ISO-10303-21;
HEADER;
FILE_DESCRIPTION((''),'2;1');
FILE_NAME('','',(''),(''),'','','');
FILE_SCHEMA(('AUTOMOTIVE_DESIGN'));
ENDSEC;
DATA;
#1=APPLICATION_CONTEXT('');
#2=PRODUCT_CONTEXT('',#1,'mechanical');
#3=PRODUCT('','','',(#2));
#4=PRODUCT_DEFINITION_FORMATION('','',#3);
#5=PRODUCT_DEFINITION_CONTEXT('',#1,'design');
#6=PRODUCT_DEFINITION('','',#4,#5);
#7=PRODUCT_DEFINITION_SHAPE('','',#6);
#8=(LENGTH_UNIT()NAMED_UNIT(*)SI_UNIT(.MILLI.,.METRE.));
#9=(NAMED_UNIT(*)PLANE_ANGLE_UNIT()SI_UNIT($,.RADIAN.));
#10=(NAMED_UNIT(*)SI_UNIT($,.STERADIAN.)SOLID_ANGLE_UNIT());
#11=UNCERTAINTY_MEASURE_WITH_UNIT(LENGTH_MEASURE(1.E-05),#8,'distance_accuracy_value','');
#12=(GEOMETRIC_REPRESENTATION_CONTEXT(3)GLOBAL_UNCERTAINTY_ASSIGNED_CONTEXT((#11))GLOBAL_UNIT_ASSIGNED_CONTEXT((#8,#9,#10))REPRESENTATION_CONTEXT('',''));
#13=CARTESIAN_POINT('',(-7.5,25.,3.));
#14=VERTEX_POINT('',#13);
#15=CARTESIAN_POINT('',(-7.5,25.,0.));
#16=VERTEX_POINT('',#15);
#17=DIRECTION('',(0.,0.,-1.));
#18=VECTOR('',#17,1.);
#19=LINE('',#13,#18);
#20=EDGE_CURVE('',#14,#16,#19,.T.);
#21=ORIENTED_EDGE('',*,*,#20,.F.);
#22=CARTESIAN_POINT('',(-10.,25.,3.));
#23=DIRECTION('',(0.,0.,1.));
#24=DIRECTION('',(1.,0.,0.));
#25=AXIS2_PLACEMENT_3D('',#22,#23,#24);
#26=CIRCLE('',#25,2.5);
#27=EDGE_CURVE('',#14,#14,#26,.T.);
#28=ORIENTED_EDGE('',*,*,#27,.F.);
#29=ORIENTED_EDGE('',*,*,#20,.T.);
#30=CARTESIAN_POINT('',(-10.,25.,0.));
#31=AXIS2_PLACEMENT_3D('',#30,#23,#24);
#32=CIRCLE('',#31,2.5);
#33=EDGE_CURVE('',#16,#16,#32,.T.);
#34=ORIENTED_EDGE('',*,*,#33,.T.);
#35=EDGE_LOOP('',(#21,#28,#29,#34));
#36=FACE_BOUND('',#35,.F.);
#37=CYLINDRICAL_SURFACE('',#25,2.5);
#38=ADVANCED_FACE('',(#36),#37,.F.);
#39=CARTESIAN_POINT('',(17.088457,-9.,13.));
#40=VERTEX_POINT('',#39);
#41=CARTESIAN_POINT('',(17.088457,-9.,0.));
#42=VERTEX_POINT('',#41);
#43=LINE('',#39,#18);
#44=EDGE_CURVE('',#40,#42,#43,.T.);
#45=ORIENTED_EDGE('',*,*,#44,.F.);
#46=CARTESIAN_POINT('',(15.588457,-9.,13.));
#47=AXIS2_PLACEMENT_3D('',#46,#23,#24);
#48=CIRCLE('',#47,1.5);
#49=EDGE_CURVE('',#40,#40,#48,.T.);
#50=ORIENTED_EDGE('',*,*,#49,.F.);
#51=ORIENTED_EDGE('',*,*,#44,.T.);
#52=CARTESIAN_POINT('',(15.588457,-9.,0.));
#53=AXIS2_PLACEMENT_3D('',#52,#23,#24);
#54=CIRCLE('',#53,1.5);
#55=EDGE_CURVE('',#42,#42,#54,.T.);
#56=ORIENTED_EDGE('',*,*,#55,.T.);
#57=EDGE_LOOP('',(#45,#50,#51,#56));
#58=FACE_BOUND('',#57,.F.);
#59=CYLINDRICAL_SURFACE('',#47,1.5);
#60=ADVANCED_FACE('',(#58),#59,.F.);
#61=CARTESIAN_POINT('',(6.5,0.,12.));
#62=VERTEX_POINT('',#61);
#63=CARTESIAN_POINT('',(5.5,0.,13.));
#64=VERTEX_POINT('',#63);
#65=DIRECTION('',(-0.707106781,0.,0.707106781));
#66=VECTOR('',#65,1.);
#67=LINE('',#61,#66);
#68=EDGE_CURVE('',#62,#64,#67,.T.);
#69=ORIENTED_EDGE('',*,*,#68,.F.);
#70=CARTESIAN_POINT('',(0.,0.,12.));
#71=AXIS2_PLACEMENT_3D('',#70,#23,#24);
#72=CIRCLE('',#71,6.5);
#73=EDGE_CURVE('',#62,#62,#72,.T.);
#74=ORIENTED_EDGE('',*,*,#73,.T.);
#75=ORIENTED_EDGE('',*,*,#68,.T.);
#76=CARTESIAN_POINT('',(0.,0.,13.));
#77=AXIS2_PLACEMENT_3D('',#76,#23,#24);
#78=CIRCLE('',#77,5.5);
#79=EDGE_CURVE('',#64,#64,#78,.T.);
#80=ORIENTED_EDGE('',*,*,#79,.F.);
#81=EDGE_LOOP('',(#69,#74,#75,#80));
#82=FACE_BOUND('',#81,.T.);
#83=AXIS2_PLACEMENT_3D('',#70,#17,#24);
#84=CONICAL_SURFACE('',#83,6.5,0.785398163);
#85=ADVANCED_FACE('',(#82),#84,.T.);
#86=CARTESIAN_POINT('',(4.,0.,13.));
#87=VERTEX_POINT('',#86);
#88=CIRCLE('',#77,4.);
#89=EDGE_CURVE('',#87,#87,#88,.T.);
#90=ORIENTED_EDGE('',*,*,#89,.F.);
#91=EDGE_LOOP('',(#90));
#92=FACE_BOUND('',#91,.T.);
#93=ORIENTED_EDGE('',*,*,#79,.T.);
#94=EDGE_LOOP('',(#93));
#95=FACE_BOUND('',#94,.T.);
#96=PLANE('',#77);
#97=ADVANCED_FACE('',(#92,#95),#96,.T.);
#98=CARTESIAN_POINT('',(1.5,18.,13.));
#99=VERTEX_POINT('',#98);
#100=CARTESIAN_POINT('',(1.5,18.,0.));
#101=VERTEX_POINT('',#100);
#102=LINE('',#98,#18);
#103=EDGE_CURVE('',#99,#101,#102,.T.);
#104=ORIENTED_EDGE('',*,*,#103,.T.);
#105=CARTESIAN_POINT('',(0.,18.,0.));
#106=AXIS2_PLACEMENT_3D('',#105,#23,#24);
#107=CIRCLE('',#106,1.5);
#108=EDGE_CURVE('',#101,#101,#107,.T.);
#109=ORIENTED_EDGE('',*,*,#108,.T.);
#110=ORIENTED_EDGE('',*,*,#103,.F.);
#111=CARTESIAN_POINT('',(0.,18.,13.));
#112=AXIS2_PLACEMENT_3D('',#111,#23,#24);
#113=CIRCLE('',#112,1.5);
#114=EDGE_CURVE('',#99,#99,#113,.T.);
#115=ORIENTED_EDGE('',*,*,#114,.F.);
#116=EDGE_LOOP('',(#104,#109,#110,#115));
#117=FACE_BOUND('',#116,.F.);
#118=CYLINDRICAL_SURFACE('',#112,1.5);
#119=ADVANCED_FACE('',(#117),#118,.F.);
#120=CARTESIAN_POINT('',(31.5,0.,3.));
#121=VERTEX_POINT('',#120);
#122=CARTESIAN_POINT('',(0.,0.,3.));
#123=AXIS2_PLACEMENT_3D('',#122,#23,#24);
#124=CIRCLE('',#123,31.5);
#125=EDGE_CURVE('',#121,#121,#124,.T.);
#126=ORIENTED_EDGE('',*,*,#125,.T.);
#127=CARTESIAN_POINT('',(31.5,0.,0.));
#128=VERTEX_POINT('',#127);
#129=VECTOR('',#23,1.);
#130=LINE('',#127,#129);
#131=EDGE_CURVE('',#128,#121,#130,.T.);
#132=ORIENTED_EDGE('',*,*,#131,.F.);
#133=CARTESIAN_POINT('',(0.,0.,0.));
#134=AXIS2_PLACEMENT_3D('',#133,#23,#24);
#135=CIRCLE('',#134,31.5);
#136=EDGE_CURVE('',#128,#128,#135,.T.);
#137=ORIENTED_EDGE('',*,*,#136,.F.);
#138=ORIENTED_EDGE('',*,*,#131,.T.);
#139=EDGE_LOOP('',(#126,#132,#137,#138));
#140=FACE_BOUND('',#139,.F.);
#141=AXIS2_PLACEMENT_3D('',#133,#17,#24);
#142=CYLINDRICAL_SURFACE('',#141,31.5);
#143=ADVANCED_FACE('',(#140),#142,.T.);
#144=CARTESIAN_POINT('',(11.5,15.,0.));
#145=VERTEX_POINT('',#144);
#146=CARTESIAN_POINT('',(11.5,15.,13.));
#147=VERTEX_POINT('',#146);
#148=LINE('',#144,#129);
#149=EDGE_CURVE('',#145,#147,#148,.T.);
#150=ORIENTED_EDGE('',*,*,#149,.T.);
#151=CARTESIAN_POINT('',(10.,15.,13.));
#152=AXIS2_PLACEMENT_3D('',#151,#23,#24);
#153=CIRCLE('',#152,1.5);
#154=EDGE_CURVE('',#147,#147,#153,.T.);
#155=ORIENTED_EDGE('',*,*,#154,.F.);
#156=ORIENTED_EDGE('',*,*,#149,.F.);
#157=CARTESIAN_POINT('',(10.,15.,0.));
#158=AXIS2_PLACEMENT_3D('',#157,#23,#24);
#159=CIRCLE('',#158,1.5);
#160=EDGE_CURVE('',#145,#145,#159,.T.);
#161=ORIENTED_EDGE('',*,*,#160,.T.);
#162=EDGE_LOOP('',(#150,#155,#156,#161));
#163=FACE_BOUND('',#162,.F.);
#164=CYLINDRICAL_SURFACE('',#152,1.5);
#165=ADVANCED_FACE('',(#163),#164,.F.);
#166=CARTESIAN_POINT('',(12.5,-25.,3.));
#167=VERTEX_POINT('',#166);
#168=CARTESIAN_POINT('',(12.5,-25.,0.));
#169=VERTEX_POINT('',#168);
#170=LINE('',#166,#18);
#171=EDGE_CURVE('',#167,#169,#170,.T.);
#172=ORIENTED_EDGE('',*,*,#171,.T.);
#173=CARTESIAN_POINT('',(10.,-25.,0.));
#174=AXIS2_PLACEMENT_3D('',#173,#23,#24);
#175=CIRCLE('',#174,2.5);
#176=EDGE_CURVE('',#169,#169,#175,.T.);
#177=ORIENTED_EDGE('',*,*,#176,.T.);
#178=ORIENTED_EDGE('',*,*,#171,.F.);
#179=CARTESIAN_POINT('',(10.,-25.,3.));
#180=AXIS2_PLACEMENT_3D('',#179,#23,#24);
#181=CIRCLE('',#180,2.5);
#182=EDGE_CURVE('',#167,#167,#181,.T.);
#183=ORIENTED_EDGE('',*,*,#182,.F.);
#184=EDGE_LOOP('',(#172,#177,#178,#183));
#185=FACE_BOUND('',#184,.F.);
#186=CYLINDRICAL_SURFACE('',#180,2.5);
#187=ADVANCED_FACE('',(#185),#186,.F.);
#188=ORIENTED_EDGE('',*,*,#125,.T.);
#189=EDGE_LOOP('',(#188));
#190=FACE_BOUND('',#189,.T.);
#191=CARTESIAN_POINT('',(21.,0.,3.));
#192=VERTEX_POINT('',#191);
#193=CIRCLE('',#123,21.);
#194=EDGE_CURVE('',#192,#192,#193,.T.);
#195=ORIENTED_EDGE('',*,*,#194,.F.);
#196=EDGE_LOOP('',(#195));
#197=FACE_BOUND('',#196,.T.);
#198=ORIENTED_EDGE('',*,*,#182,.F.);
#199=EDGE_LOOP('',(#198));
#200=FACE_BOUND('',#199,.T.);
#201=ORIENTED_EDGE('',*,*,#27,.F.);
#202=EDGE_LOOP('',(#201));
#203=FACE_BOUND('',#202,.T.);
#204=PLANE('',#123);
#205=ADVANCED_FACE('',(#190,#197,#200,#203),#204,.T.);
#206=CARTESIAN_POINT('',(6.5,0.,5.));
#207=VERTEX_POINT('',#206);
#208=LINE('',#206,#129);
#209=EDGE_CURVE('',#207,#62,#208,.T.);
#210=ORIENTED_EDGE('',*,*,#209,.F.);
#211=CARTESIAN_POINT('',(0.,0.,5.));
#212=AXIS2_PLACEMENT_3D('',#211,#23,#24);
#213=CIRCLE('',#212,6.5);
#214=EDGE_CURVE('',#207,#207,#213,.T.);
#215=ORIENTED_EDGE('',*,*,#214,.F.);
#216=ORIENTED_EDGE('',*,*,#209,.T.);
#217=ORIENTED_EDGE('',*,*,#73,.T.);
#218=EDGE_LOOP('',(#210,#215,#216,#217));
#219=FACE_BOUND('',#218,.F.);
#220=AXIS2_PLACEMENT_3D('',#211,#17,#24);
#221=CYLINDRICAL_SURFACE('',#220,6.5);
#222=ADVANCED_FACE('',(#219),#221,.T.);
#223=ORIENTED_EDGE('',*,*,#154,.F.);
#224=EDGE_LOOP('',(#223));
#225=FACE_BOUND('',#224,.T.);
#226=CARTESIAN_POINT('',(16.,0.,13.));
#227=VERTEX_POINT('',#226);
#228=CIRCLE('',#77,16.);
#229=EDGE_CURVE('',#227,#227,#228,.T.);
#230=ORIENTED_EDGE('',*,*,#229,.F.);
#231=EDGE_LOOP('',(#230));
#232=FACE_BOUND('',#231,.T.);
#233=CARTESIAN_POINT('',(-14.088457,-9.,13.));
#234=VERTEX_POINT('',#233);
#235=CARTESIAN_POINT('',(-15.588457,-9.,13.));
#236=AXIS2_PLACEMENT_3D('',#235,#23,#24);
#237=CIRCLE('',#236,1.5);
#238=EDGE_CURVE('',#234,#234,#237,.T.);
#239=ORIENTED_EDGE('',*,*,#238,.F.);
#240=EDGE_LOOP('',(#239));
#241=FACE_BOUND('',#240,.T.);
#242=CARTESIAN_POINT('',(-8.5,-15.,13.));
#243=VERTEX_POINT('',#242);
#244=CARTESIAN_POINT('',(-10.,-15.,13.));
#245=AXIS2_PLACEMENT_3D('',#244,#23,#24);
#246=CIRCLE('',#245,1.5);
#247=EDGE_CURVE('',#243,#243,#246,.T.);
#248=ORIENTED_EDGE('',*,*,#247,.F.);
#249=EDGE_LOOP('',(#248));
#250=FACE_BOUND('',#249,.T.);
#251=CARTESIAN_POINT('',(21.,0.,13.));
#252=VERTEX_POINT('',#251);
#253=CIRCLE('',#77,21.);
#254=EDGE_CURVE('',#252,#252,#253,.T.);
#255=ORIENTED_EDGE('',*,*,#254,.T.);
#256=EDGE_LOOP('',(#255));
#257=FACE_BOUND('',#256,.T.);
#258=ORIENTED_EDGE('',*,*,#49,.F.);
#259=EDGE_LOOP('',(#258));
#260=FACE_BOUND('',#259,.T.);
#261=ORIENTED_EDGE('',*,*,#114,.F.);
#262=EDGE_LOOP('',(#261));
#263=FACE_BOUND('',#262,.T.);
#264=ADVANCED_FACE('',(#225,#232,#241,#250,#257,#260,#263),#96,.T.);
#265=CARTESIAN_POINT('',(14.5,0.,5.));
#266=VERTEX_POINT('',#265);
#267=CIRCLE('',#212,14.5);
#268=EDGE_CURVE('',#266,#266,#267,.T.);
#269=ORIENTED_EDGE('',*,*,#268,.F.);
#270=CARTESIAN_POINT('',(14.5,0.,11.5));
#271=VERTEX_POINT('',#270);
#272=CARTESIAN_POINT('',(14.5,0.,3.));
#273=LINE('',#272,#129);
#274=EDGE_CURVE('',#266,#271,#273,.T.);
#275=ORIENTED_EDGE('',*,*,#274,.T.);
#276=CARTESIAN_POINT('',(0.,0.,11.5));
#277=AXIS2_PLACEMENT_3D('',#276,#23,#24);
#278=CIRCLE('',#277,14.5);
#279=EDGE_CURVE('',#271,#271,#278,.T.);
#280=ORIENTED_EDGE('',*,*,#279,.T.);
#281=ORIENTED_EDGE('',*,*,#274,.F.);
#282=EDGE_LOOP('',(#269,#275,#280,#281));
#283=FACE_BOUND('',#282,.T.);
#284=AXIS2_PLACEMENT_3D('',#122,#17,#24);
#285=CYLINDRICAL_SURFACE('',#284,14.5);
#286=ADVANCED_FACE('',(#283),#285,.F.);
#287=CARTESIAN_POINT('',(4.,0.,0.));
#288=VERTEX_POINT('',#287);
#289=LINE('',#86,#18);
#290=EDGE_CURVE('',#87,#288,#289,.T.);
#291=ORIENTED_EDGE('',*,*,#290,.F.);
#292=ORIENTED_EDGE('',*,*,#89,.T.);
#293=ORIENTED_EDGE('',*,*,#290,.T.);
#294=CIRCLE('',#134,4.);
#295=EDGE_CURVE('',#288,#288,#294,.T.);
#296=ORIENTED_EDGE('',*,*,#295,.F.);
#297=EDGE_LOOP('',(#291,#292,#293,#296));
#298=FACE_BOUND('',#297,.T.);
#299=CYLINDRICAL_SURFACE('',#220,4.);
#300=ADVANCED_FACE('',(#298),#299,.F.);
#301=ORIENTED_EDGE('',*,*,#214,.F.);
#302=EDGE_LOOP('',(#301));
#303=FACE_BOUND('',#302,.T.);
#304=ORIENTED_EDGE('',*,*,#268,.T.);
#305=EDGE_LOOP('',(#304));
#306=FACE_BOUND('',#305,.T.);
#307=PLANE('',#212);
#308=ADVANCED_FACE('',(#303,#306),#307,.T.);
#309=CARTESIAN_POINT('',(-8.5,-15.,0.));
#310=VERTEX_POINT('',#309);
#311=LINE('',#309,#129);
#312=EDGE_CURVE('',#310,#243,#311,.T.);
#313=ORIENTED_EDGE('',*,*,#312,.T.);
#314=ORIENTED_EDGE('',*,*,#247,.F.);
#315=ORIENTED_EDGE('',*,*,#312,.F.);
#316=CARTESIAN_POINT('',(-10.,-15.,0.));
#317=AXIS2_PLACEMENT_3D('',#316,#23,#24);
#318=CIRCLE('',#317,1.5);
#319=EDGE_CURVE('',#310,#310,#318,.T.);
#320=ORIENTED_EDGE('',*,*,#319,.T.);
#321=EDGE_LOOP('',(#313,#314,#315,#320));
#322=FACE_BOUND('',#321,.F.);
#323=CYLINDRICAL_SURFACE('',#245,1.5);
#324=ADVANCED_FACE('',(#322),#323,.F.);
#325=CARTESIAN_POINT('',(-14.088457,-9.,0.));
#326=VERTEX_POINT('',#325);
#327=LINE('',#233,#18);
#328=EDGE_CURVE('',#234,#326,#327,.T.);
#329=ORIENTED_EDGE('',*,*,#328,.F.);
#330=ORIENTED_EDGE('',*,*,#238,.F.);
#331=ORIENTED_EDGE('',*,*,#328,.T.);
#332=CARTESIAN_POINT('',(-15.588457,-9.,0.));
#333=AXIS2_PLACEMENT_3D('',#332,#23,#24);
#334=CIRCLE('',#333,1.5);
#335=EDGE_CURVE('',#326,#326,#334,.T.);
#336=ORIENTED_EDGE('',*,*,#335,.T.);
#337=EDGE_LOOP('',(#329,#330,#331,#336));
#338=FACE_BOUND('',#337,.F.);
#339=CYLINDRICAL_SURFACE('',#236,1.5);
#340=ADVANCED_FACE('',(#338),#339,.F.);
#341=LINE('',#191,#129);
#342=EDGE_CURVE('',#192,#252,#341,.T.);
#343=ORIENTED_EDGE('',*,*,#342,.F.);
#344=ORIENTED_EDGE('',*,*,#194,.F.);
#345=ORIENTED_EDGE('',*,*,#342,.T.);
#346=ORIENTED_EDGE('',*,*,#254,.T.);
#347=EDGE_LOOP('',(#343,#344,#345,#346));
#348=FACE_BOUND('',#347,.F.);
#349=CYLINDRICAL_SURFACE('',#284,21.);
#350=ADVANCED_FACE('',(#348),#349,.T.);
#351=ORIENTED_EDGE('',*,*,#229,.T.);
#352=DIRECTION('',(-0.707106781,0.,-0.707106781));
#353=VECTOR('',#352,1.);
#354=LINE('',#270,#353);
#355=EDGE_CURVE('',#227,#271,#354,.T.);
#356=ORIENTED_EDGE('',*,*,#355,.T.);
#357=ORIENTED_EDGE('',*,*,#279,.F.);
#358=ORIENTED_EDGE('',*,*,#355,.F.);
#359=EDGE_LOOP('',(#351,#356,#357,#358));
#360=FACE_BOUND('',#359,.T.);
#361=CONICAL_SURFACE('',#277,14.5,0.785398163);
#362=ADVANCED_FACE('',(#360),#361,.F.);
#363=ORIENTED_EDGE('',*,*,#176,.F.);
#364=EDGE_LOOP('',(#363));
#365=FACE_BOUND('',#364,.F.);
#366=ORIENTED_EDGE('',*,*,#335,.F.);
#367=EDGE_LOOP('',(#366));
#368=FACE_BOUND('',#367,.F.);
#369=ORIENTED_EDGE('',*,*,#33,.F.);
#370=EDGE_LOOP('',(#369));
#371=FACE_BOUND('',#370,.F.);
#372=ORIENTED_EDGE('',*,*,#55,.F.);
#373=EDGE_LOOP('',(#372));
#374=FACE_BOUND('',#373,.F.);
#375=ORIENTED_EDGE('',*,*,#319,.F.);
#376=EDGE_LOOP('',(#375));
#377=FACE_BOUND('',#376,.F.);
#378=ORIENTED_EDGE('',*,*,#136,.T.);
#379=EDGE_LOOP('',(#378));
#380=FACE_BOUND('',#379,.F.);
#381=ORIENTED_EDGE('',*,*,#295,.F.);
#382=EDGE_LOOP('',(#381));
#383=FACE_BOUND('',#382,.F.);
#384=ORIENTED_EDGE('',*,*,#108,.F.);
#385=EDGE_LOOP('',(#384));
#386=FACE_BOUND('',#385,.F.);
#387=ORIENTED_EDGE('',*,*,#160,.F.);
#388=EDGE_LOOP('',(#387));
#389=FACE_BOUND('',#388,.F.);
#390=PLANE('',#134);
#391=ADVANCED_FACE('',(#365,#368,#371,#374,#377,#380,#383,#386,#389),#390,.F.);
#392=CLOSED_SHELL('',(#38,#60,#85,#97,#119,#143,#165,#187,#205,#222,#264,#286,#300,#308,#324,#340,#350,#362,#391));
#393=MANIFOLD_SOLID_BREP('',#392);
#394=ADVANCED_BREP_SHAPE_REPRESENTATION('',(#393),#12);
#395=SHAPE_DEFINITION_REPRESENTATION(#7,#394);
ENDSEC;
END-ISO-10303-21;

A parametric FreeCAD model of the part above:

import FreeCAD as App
import Part
import Sketcher

V = App.Vector


def edges_at(feature, points):
    """Names of the edges that pass closest to the given points."""
    edges = feature.Shape.Edges
    near = lambda p: min(range(len(edges)), key=lambda i: edges[i].distToShape(Part.Vertex(*p))[0])
    return sorted({f"Edge{near(p) + 1}" for p in points})

doc = App.newDocument("Part")
body = doc.addObject("PartDesign::Body", "Body")

# Sketch on XY plane
sketch1 = body.newObject("Sketcher::SketchObject", "Sketch")
sketch1.AttachmentSupport = (doc.getObject("XY_Plane"), [""])
sketch1.MapMode = "FlatFace"
sketch1.addGeometry([
    Part.Circle(V(0, 0, 0), V(0, 0, 1), 31.5),
    Part.Circle(V(0, 0, 0), V(0, 0, 1), 4),
], False)
sketch1.addConstraint([
    Sketcher.Constraint("Coincident", 0, 3, -1, 1),
    Sketcher.Constraint("Coincident", 1, 3, -1, 1),
    Sketcher.Constraint("Diameter", 0, 63.0),
    Sketcher.Constraint("Diameter", 1, 8.0),
])
pad1 = body.newObject("PartDesign::Pad", "Pad")
pad1.Profile = sketch1
pad1.Length = 3

# Sketch on XY plane
sketch2 = body.newObject("Sketcher::SketchObject", "Sketch001")
sketch2.AttachmentSupport = (doc.getObject("XY_Plane"), [""])
sketch2.MapMode = "FlatFace"
sketch2.AttachmentOffset = App.Placement(V(0, 0, 3), App.Rotation())
sketch2.addGeometry([
    Part.Circle(V(0, 0, 0), V(0, 0, 1), 21),
    Part.Circle(V(0, 0, 0), V(0, 0, 1), 14),
], False)
sketch2.addConstraint([
    Sketcher.Constraint("Coincident", 0, 3, -1, 1),
    Sketcher.Constraint("Coincident", 1, 3, -1, 1),
    Sketcher.Constraint("Diameter", 0, 42.0),
    Sketcher.Constraint("Diameter", 1, 29.0),
])
pad2 = body.newObject("PartDesign::Pad", "Pad001")
pad2.Profile = sketch2
pad2.Length = 10

# Sketch on XY plane
sketch3 = body.newObject("Sketcher::SketchObject", "Sketch002")
sketch3.AttachmentSupport = (doc.getObject("XY_Plane"), [""])
sketch3.MapMode = "FlatFace"
sketch3.AttachmentOffset = App.Placement(V(0, 0, 3), App.Rotation())
sketch3.addGeometry([
    Part.Circle(V(0, 0, 0), V(0, 0, 1), 14.5),
    Part.Circle(V(0, 0, 0), V(0, 0, 1), 4),
], False)
sketch3.addConstraint([
    Sketcher.Constraint("Coincident", 0, 3, -1, 1),
    Sketcher.Constraint("Coincident", 1, 3, -1, 1),
    Sketcher.Constraint("Diameter", 0, 29.0),
    Sketcher.Constraint("Diameter", 1, 8.0),
])
pad3 = body.newObject("PartDesign::Pad", "Pad002")
pad3.Profile = sketch3
pad3.Length = 2

# Sketch on XY plane
sketch4 = body.newObject("Sketcher::SketchObject", "Sketch003")
sketch4.AttachmentSupport = (doc.getObject("XY_Plane"), [""])
sketch4.MapMode = "FlatFace"
sketch4.AttachmentOffset = App.Placement(V(0, 0, 5), App.Rotation())
sketch4.addGeometry([
    Part.Circle(V(0, 0, 0), V(0, 0, 1), 6.5),
    Part.Circle(V(0, 0, 0), V(0, 0, 1), 4),
], False)
sketch4.addConstraint([
    Sketcher.Constraint("Coincident", 0, 3, -1, 1),
    Sketcher.Constraint("Coincident", 1, 3, -1, 1),
    Sketcher.Constraint("Diameter", 0, 13.0),
    Sketcher.Constraint("Diameter", 1, 8.0),
])
pad4 = body.newObject("PartDesign::Pad", "Pad003")
pad4.Profile = sketch4
pad4.Length = 8

# Sketch on XY plane
sketch5 = body.newObject("Sketcher::SketchObject", "Sketch004")
sketch5.AttachmentSupport = (doc.getObject("XY_Plane"), [""])
sketch5.MapMode = "FlatFace"
sketch5.AttachmentOffset = App.Placement(V(0, 0, 3), App.Rotation())
sketch5.addGeometry([
    Part.Circle(V(-10, 25, 0), V(0, 0, 1), 2.5),
    Part.Circle(V(10, -25, 0), V(0, 0, 1), 2.5),
    Part.Circle(V(-10, -15, 0), V(0, 0, 1), 1.5),
    Part.Circle(V(10, 15, 0), V(0, 0, 1), 1.5),
], False)
sketch5.addConstraint([
    Sketcher.Constraint("Equal", 0, 1),
    Sketcher.Constraint("Equal", 2, 3),
    Sketcher.Constraint("Symmetric", 0, 3, 1, 3, -1, 1),
    Sketcher.Constraint("Symmetric", 2, 3, 3, 3, -1, 1),
    Sketcher.Constraint("Vertical", 0, 3, 2, 3),
    Sketcher.Constraint("Diameter", 0, 5.0),
    Sketcher.Constraint("Diameter", 2, 3.0),
    Sketcher.Constraint("DistanceX", 0, 3, -1, 1, 10.0),
    Sketcher.Constraint("DistanceY", -1, 1, 0, 3, 25.0),
    Sketcher.Constraint("DistanceY", 2, 3, -1, 1, 15.0),
])
pocket1 = body.newObject("PartDesign::Pocket", "Pocket")
pocket1.Profile = sketch5
pocket1.Type = "ThroughAll"

# Sketch on XY plane
sketch6 = body.newObject("Sketcher::SketchObject", "Sketch005")
sketch6.AttachmentSupport = (doc.getObject("XY_Plane"), [""])
sketch6.MapMode = "FlatFace"
sketch6.AttachmentOffset = App.Placement(V(0, 0, 13), App.Rotation())
sketch6.addGeometry([
    Part.Circle(V(0, 18, 0), V(0, 0, 1), 1.5),
    Part.Circle(V(-15.6, -9, 0), V(0, 0, 1), 1.5),
    Part.Circle(V(15.6, -9, 0), V(0, 0, 1), 1.5),
], False)
sketch6.addConstraint([
    Sketcher.Constraint("Equal", 0, 1),
    Sketcher.Constraint("Equal", 1, 2),
    Sketcher.Constraint("Symmetric", 1, 3, 2, 3, -2),
    Sketcher.Constraint("PointOnObject", 0, 3, -2),
    Sketcher.Constraint("Diameter", 0, 3.0),
    Sketcher.Constraint("DistanceY", -1, 1, 0, 3, 18.0),
    Sketcher.Constraint("DistanceY", 1, 3, -1, 1, 9.0),
    Sketcher.Constraint("DistanceX", 1, 3, -1, 1, 15.588457),
])
pocket2 = body.newObject("PartDesign::Pocket", "Pocket001")
pocket2.Profile = sketch6
pocket2.Type = "ThroughAll"

# Sketch on XY plane
sketch7 = body.newObject("Sketcher::SketchObject", "Sketch006")
sketch7.AttachmentSupport = (doc.getObject("XY_Plane"), [""])
sketch7.MapMode = "FlatFace"
sketch7.AttachmentOffset = App.Placement(V(0, 0, 13), App.Rotation())
sketch7.addGeometry([
    Part.Circle(V(10, 15, 0), V(0, 0, 1), 1.5),
    Part.Circle(V(-10, -15, 0), V(0, 0, 1), 1.5),
], False)
sketch7.addConstraint([
    Sketcher.Constraint("Equal", 0, 1),
    Sketcher.Constraint("Symmetric", 0, 3, 1, 3, -1, 1),
    Sketcher.Constraint("Diameter", 0, 3.0),
    Sketcher.Constraint("DistanceX", -1, 1, 0, 3, 10.0),
    Sketcher.Constraint("DistanceY", -1, 1, 0, 3, 15.0),
])
pocket3 = body.newObject("PartDesign::Pocket", "Pocket002")
pocket3.Profile = sketch7
pocket3.Type = "ThroughAll"
doc.recompute()

chamfer = body.newObject("PartDesign::Chamfer", "Chamfer")
chamfer.Base = (pocket3, edges_at(pocket3, [(-14.5, 0, 13)]))
chamfer.Size = 1.5
doc.recompute()

chamfer2 = body.newObject("PartDesign::Chamfer", "Chamfer001")
chamfer2.Base = (chamfer, edges_at(chamfer, [(-6.5, 0, 13)]))
chamfer2.Size = 1

doc.recompute()
